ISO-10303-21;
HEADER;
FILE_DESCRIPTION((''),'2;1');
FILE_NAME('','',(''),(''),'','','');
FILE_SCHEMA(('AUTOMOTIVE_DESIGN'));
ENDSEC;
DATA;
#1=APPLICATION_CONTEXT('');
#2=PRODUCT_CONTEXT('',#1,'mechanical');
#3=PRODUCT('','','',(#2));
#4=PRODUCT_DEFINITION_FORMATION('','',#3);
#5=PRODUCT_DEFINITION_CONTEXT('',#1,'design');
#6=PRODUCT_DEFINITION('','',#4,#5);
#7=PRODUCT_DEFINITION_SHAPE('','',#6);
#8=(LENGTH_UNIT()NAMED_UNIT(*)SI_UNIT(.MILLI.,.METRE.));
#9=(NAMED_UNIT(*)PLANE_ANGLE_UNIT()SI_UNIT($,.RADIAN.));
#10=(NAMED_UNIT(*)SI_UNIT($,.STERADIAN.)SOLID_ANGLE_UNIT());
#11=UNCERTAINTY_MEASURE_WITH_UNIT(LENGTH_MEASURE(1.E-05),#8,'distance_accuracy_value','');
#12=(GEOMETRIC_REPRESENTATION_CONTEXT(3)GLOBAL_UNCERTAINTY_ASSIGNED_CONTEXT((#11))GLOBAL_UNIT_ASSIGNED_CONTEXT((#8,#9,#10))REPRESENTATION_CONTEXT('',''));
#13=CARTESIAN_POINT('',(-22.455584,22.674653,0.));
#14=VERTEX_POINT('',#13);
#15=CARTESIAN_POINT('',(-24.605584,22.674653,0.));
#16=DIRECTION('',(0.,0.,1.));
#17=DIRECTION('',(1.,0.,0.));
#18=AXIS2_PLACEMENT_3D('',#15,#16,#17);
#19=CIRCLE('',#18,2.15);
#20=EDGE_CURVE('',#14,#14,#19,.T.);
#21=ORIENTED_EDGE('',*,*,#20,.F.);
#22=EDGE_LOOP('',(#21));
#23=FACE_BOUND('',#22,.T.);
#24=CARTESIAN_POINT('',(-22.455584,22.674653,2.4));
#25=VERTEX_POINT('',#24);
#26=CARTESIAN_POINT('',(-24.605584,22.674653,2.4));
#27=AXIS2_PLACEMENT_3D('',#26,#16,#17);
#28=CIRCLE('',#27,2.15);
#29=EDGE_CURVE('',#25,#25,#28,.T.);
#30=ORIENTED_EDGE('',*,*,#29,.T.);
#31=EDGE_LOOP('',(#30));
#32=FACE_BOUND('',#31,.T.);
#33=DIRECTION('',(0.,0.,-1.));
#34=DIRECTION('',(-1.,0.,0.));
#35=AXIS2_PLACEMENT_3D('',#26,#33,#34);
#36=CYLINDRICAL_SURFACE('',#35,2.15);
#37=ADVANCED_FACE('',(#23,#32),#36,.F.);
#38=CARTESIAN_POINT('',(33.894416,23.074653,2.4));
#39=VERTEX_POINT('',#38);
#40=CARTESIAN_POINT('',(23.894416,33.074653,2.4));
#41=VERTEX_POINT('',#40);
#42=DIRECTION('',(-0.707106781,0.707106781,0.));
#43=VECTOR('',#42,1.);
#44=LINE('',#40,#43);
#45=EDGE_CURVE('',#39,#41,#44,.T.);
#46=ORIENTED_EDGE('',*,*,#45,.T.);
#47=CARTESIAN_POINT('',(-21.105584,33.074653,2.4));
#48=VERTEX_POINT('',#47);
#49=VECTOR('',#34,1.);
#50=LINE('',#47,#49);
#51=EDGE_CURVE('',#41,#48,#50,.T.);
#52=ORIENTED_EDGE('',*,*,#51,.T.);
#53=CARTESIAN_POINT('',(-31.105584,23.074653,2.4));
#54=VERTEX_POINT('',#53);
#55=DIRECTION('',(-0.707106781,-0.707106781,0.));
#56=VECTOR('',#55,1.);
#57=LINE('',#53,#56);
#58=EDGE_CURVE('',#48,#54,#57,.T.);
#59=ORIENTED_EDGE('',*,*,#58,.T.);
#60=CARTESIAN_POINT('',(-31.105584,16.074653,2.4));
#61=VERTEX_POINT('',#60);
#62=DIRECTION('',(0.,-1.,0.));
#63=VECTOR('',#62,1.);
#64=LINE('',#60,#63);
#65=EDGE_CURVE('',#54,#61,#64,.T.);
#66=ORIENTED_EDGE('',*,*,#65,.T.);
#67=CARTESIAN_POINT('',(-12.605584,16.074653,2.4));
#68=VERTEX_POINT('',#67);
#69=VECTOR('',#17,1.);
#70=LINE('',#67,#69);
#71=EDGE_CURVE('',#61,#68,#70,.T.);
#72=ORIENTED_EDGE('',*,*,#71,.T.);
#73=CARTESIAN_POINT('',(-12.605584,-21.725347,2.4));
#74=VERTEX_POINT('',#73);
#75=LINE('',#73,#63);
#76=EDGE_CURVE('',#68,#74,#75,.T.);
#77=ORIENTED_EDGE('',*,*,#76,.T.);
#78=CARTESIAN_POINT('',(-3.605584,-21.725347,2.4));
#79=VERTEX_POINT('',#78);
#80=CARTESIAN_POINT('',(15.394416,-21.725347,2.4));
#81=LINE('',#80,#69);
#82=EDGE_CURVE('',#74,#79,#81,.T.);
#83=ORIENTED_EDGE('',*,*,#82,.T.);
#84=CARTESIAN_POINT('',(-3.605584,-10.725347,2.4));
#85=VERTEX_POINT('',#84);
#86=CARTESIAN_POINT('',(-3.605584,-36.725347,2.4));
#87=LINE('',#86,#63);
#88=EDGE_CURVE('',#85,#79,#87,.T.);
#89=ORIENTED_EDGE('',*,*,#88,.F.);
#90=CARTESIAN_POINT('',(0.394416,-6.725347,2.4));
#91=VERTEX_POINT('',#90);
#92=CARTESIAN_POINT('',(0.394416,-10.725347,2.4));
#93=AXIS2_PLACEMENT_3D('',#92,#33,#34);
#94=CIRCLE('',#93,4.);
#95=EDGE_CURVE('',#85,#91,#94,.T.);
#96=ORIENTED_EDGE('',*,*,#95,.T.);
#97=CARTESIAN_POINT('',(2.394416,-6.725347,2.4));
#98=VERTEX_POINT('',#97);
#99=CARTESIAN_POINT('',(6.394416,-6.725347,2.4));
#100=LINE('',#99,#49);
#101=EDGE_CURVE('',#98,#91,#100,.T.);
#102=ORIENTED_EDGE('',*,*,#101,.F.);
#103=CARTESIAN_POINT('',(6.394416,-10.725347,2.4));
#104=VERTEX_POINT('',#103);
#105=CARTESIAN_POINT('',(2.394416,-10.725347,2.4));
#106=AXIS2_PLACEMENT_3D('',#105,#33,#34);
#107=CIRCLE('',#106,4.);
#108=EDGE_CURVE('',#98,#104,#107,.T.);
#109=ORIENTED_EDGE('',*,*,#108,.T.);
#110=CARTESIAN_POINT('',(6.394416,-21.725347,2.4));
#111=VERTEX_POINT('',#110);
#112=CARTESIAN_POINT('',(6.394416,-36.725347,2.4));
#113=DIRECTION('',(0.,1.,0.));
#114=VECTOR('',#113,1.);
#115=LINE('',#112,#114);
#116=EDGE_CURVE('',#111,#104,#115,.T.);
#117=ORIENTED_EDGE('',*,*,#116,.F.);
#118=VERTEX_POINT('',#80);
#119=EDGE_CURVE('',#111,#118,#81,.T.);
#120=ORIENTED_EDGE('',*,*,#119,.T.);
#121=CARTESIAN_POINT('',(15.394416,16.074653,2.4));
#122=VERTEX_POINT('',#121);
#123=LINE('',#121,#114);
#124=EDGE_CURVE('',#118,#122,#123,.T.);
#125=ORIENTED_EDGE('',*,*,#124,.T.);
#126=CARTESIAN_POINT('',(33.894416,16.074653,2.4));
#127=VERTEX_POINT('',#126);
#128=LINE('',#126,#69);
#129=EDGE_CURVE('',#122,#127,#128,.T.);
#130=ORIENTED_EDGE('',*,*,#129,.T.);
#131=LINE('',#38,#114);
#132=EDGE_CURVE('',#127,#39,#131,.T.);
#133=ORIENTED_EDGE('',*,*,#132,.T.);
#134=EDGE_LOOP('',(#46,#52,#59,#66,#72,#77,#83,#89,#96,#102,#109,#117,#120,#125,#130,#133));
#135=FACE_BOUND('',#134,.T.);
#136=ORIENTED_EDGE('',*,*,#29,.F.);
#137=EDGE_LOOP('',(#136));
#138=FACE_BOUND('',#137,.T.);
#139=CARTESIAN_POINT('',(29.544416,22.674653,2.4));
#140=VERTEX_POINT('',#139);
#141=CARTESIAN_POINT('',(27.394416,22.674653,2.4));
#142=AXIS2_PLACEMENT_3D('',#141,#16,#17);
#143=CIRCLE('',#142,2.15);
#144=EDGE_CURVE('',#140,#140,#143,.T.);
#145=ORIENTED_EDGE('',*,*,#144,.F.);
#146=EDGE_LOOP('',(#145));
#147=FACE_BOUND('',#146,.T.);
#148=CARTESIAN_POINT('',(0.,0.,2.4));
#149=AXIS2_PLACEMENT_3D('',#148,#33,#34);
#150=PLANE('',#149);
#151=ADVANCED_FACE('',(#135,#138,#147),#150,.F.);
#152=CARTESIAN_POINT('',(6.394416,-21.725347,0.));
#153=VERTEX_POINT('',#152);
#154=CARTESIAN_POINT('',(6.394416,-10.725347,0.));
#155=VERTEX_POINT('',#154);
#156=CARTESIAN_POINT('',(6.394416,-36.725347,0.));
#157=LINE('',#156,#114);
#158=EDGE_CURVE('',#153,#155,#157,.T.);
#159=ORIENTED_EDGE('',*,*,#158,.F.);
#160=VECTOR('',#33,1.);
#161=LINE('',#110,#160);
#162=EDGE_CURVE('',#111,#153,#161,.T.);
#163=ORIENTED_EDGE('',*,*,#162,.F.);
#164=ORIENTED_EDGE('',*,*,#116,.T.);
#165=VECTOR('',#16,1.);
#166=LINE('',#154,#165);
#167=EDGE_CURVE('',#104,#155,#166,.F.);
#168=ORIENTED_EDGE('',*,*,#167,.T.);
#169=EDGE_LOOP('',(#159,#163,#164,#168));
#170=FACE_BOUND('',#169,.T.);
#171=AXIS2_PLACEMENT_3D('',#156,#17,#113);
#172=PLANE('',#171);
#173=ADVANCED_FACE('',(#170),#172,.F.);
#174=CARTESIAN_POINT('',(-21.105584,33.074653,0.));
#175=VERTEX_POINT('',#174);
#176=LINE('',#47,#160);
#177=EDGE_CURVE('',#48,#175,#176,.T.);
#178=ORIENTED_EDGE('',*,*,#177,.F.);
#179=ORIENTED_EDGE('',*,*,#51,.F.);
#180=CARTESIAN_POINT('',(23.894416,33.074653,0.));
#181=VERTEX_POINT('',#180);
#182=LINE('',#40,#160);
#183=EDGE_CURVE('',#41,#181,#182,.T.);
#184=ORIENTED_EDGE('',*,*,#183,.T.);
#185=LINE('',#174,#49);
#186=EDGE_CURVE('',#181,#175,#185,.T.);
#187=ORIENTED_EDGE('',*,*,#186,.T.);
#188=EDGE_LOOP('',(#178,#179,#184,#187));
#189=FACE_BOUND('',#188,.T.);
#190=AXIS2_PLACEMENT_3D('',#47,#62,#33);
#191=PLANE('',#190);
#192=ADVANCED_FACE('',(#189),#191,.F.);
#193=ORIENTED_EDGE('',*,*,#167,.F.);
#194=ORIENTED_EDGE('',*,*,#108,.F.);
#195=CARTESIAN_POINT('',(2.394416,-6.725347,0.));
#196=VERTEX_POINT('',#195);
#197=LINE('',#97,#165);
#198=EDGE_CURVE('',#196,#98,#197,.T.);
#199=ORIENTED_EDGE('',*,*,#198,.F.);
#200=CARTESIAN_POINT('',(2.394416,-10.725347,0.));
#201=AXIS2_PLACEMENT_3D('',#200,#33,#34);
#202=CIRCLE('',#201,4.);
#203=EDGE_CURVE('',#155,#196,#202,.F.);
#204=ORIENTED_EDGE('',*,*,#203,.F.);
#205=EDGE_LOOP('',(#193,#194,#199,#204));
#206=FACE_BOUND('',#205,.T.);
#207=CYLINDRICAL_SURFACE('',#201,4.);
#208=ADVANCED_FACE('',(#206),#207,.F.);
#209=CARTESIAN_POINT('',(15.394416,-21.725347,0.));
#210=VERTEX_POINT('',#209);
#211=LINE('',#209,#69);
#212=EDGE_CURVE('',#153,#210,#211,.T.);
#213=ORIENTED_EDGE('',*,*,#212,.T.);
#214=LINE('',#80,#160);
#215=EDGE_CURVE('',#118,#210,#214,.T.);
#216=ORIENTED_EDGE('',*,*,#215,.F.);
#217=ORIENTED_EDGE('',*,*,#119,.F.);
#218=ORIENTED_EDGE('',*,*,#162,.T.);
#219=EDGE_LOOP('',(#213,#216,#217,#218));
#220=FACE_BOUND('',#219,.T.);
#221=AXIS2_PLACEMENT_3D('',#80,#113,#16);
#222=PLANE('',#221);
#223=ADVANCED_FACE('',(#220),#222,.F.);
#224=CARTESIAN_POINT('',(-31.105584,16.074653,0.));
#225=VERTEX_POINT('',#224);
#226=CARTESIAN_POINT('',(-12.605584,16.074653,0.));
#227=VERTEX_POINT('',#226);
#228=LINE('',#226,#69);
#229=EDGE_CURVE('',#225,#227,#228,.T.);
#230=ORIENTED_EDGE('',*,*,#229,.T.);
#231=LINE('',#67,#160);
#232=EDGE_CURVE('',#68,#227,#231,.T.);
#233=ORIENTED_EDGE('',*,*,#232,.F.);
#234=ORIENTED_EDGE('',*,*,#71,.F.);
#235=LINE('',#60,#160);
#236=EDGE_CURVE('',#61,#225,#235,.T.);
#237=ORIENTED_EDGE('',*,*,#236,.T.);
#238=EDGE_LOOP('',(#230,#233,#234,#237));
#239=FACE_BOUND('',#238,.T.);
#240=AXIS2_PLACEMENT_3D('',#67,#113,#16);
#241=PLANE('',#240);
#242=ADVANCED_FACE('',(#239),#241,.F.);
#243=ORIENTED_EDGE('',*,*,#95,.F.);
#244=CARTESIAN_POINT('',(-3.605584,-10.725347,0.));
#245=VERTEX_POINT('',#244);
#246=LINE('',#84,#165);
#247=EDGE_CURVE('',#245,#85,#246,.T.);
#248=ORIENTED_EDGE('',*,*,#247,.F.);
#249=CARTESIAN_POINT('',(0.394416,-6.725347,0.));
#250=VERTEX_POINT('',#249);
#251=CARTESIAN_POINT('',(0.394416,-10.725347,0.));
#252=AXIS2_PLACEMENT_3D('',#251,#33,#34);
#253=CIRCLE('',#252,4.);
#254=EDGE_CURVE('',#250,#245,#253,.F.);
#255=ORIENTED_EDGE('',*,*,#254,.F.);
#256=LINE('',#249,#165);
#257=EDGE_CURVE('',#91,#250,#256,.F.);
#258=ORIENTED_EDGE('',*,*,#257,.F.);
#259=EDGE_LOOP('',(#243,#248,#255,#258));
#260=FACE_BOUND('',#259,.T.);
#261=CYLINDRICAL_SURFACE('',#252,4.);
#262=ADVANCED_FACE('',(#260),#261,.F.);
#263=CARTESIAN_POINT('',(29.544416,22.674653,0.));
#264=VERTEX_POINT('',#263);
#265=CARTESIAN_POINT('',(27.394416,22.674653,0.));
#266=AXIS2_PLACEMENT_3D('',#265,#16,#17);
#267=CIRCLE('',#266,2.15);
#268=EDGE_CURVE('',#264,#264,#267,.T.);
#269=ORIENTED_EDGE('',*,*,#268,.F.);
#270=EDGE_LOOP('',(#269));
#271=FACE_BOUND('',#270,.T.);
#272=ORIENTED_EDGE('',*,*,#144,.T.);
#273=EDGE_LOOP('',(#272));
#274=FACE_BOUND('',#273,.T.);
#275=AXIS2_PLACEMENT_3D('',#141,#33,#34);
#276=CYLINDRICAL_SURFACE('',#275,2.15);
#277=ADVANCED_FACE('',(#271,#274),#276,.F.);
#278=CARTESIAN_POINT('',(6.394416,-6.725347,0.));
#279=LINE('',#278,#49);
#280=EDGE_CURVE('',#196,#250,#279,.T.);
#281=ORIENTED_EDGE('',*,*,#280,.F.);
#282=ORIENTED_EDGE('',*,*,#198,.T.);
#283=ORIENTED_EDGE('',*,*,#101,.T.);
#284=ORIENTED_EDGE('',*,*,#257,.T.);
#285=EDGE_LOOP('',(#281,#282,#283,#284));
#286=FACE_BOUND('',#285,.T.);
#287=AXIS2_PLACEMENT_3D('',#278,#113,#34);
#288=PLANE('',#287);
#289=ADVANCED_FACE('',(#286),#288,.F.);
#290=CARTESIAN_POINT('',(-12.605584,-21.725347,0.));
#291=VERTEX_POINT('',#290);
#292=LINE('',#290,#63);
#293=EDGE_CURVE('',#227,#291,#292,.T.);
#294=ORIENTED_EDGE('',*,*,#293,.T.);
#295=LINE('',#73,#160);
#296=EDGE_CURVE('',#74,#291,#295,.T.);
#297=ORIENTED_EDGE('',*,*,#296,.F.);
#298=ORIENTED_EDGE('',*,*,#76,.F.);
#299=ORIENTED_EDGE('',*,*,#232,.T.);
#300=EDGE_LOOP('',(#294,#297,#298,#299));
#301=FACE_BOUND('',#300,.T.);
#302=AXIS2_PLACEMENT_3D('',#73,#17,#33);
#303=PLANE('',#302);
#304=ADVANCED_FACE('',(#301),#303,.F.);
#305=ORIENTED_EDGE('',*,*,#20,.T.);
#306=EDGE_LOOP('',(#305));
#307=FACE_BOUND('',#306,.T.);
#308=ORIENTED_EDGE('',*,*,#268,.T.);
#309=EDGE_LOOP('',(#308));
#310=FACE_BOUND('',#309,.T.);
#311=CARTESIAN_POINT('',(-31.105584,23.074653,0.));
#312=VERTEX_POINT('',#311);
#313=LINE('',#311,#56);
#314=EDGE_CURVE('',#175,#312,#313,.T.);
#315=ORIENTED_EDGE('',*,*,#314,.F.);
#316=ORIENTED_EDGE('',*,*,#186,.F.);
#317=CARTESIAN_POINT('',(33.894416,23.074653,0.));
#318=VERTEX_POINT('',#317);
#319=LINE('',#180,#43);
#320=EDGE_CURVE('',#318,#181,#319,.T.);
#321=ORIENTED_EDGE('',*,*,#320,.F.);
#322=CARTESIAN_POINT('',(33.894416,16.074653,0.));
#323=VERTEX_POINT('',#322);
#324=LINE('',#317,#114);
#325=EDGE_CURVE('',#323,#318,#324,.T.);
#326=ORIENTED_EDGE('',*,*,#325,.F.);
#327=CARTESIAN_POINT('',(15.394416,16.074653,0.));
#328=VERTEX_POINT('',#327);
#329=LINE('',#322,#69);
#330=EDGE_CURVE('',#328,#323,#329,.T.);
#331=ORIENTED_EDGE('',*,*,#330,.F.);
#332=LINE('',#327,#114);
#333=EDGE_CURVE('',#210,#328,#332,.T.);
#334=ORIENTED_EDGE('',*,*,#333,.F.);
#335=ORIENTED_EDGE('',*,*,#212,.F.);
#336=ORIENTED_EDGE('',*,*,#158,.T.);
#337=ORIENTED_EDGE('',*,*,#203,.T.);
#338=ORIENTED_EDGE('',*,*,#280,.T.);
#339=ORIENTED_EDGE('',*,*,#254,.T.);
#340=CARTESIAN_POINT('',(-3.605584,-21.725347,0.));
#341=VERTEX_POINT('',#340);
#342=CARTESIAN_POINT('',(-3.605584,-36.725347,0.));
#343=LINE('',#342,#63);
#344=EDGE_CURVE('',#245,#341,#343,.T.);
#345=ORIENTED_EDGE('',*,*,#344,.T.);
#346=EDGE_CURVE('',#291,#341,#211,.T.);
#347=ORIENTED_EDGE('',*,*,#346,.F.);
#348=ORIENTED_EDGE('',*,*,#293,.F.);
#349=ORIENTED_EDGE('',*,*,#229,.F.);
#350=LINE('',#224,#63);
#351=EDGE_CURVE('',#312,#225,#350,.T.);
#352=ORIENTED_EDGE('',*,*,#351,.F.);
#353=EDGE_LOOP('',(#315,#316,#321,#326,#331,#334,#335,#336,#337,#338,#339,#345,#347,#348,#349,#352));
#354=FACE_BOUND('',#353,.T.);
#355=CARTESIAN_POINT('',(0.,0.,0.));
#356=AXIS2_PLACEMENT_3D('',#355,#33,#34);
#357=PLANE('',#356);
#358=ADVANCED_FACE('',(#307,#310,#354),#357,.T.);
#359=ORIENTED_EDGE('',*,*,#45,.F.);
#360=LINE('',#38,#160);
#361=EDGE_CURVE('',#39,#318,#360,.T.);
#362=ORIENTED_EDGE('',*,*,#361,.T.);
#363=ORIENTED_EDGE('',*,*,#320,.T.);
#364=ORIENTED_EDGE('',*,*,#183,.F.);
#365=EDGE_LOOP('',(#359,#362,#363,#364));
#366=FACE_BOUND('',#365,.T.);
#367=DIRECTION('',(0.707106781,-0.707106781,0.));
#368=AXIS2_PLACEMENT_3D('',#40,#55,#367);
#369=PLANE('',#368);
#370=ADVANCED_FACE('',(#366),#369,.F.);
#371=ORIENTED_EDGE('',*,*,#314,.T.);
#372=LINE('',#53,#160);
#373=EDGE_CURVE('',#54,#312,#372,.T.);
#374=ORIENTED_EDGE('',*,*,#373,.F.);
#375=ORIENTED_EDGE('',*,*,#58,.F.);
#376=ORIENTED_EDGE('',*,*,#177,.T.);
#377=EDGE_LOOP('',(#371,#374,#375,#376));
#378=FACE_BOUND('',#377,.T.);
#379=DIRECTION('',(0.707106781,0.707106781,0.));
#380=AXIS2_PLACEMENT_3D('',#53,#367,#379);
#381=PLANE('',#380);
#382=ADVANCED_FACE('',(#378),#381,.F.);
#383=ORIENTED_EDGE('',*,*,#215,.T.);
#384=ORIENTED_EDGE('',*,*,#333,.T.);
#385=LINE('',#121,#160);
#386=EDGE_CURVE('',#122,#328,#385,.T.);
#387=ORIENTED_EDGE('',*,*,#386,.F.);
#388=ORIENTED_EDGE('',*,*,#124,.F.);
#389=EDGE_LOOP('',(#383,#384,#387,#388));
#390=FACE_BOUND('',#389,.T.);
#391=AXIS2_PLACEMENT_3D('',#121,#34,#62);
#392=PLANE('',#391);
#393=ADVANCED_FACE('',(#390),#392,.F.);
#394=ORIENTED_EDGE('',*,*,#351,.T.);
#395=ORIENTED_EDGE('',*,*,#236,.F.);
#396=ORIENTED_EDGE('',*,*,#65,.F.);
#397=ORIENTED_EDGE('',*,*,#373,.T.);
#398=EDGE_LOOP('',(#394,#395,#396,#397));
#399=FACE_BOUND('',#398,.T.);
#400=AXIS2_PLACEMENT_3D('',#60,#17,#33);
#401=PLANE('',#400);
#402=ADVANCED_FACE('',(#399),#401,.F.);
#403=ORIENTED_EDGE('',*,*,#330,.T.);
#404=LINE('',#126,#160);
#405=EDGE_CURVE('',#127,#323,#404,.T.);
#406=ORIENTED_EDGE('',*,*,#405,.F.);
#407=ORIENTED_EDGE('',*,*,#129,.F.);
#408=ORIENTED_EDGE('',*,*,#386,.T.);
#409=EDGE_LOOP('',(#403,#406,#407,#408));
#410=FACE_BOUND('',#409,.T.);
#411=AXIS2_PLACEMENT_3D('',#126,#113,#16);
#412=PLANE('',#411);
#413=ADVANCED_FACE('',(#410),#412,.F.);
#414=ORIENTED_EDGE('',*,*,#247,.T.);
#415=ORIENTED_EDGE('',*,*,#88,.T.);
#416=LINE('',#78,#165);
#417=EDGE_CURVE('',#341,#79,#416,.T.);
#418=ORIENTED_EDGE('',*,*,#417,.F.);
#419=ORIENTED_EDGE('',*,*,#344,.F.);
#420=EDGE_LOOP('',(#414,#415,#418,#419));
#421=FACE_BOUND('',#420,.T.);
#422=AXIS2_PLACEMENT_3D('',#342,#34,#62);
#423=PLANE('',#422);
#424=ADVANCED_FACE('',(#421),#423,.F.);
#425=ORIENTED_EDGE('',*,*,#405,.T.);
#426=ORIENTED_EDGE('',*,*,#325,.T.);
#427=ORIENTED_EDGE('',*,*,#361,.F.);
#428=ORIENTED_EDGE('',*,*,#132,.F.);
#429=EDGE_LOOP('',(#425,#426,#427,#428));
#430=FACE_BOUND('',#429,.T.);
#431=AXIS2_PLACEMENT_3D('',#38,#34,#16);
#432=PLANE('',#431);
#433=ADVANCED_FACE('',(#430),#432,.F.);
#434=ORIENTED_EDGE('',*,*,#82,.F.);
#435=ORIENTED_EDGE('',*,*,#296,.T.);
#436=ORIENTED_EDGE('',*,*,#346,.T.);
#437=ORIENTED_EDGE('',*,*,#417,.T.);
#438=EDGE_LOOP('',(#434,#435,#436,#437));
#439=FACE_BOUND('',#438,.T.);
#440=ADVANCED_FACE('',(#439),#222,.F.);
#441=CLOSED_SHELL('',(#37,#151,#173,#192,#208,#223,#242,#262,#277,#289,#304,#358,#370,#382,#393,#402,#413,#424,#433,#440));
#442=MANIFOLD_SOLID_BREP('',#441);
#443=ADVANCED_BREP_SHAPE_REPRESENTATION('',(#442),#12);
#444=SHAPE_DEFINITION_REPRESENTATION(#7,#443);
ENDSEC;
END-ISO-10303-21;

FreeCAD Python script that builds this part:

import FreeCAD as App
import Part
import Sketcher
Q = App.Units.Quantity


def edges_at(feature, points):
    """Names of the edges that pass closest to the given points."""
    edges = feature.Shape.Edges
    near = lambda p: min(range(len(edges)), key=lambda i: edges[i].distToShape(Part.Vertex(*p))[0])
    return sorted({f"Edge{near(p) + 1}" for p in points})


def add_polygon(sketch, points):
    """Adds a closed chain of lines whose ends are joined by coincident constraints."""
    first, n = sketch.GeometryCount, len(points)
    for a, b in zip(points, points[1:] + points[:1]):
        sketch.addGeometry(Part.LineSegment(App.Vector(*a, 0), App.Vector(*b, 0)), False)
    for i in range(n):
        sketch.addConstraint(Sketcher.Constraint("Coincident", first + i, 2, first + (i + 1) % n, 1))

doc = App.newDocument("Part")
body = doc.addObject("PartDesign::Body", "Body")

# Sketch on XY plane
sketch1 = body.newObject("Sketcher::SketchObject", "Sketch")
sketch1.AttachmentSupport = (doc.getObject("XY_Plane"), [""])
sketch1.MapMode = "FlatFace"
add_polygon(sketch1, [(23.9, 33.1), (-21.1, 33.1), (-31.1, 23.1), (-31.1, 16.1), (-12.6, 16.1), (-12.6, -21.7), (15.4, -21.7), (15.4, 16.1), (33.9, 16.1), (33.9, 23.1)])  # lines 0-9
sketch1.addGeometry(Part.Circle(App.Vector(27.4, 22.7, 0), App.Vector(0, 0, 1), 2.1), False)  # 10
sketch1.addGeometry(Part.Circle(App.Vector(-24.6, 22.7, 0), App.Vector(0, 0, 1), 2.1), False)  # 11
sketch1.addConstraint([
    Sketcher.Constraint("Horizontal", 0),
    Sketcher.Constraint("Vertical", 2),
    Sketcher.Constraint("Horizontal", 3),
    Sketcher.Constraint("Vertical", 4),
    Sketcher.Constraint("Horizontal", 5),
    Sketcher.Constraint("Vertical", 6),
    Sketcher.Constraint("Horizontal", 7),
    Sketcher.Constraint("Vertical", 8),
    Sketcher.Constraint("Equal", 10, 11),
    Sketcher.Constraint("Perpendicular", 1, 9),
    Sketcher.Constraint("Horizontal", 10, 3, 11, 3),
    Sketcher.Constraint("Horizontal", 3, 2, 6, 2),
    Sketcher.Constraint("Horizontal", 1, 2, 8, 2),
    Sketcher.Constraint("Equal", 3, 7),
    Sketcher.Constraint("Equal", 1, 9),
    Sketcher.Constraint("Diameter", 10, Q("4.3 mm")),
    Sketcher.Constraint("DistanceX", 0, 2, 0, 1, Q("45 mm")),
    Sketcher.Constraint("DistanceX", 5, 1, 5, 2, Q("28 mm")),
    Sketcher.Constraint("DistanceY", 2, 2, 2, 1, Q("7 mm")),
    Sketcher.Constraint("DistanceX", 3, 1, 3, 2, Q("18.5 mm")),
    Sketcher.Constraint("DistanceY", 4, 2, 4, 1, Q("37.8 mm")),
    Sketcher.Constraint("DistanceX", 11, 3, 10, 3, Q("52 mm")),
    Sketcher.Constraint("DistanceX", 11, 3, 3, 2, Q("12 mm")),
    Sketcher.Constraint("DistanceY", 11, 3, 0, 2, Q("10.4 mm")),
    Sketcher.Constraint("DistanceX", -1, 1, 10, 3, Q("27.394416 mm")),
    Sketcher.Constraint("DistanceY", -1, 1, 10, 3, Q("22.674653 mm")),
])
pad1 = body.newObject("PartDesign::Pad", "Pad")
pad1.Profile = sketch1
pad1.Length = 2.4

# Sketch on XY plane
sketch2 = body.newObject("Sketcher::SketchObject", "Sketch001")
sketch2.AttachmentSupport = (doc.getObject("XY_Plane"), [""])
sketch2.MapMode = "FlatFace"
sketch2.AttachmentOffset = App.Placement(App.Vector(0, 0, 2.4), App.Rotation())
add_polygon(sketch2, [(-4, -7), (-4, -37), (6, -37), (6, -7)])  # lines 0-3
sketch2.addConstraint([
    Sketcher.Constraint("Vertical", 0),
    Sketcher.Constraint("Horizontal", 1),
    Sketcher.Constraint("Vertical", 2),
    Sketcher.Constraint("Horizontal", 3),
    Sketcher.Constraint("DistanceX", 1, 1, 1, 2, Q("10 mm")),
    Sketcher.Constraint("DistanceY", 0, 2, 0, 1, Q("30 mm")),
    Sketcher.Constraint("DistanceX", 0, 2, -1, 1, Q("3.605584 mm")),
    Sketcher.Constraint("DistanceY", 0, 2, -1, 1, Q("36.725347 mm")),
])
pocket1 = body.newObject("PartDesign::Pocket", "Pocket")
pocket1.Profile = sketch2
pocket1.Type = "ThroughAll"
doc.recompute()

fillet = body.newObject("PartDesign::Fillet", "Fillet")
fillet.Base = (pocket1, edges_at(pocket1, [(6.394, -6.725, 1.2), (-3.606, -6.725, 1.2)]))
fillet.Radius = 4

doc.recompute()
